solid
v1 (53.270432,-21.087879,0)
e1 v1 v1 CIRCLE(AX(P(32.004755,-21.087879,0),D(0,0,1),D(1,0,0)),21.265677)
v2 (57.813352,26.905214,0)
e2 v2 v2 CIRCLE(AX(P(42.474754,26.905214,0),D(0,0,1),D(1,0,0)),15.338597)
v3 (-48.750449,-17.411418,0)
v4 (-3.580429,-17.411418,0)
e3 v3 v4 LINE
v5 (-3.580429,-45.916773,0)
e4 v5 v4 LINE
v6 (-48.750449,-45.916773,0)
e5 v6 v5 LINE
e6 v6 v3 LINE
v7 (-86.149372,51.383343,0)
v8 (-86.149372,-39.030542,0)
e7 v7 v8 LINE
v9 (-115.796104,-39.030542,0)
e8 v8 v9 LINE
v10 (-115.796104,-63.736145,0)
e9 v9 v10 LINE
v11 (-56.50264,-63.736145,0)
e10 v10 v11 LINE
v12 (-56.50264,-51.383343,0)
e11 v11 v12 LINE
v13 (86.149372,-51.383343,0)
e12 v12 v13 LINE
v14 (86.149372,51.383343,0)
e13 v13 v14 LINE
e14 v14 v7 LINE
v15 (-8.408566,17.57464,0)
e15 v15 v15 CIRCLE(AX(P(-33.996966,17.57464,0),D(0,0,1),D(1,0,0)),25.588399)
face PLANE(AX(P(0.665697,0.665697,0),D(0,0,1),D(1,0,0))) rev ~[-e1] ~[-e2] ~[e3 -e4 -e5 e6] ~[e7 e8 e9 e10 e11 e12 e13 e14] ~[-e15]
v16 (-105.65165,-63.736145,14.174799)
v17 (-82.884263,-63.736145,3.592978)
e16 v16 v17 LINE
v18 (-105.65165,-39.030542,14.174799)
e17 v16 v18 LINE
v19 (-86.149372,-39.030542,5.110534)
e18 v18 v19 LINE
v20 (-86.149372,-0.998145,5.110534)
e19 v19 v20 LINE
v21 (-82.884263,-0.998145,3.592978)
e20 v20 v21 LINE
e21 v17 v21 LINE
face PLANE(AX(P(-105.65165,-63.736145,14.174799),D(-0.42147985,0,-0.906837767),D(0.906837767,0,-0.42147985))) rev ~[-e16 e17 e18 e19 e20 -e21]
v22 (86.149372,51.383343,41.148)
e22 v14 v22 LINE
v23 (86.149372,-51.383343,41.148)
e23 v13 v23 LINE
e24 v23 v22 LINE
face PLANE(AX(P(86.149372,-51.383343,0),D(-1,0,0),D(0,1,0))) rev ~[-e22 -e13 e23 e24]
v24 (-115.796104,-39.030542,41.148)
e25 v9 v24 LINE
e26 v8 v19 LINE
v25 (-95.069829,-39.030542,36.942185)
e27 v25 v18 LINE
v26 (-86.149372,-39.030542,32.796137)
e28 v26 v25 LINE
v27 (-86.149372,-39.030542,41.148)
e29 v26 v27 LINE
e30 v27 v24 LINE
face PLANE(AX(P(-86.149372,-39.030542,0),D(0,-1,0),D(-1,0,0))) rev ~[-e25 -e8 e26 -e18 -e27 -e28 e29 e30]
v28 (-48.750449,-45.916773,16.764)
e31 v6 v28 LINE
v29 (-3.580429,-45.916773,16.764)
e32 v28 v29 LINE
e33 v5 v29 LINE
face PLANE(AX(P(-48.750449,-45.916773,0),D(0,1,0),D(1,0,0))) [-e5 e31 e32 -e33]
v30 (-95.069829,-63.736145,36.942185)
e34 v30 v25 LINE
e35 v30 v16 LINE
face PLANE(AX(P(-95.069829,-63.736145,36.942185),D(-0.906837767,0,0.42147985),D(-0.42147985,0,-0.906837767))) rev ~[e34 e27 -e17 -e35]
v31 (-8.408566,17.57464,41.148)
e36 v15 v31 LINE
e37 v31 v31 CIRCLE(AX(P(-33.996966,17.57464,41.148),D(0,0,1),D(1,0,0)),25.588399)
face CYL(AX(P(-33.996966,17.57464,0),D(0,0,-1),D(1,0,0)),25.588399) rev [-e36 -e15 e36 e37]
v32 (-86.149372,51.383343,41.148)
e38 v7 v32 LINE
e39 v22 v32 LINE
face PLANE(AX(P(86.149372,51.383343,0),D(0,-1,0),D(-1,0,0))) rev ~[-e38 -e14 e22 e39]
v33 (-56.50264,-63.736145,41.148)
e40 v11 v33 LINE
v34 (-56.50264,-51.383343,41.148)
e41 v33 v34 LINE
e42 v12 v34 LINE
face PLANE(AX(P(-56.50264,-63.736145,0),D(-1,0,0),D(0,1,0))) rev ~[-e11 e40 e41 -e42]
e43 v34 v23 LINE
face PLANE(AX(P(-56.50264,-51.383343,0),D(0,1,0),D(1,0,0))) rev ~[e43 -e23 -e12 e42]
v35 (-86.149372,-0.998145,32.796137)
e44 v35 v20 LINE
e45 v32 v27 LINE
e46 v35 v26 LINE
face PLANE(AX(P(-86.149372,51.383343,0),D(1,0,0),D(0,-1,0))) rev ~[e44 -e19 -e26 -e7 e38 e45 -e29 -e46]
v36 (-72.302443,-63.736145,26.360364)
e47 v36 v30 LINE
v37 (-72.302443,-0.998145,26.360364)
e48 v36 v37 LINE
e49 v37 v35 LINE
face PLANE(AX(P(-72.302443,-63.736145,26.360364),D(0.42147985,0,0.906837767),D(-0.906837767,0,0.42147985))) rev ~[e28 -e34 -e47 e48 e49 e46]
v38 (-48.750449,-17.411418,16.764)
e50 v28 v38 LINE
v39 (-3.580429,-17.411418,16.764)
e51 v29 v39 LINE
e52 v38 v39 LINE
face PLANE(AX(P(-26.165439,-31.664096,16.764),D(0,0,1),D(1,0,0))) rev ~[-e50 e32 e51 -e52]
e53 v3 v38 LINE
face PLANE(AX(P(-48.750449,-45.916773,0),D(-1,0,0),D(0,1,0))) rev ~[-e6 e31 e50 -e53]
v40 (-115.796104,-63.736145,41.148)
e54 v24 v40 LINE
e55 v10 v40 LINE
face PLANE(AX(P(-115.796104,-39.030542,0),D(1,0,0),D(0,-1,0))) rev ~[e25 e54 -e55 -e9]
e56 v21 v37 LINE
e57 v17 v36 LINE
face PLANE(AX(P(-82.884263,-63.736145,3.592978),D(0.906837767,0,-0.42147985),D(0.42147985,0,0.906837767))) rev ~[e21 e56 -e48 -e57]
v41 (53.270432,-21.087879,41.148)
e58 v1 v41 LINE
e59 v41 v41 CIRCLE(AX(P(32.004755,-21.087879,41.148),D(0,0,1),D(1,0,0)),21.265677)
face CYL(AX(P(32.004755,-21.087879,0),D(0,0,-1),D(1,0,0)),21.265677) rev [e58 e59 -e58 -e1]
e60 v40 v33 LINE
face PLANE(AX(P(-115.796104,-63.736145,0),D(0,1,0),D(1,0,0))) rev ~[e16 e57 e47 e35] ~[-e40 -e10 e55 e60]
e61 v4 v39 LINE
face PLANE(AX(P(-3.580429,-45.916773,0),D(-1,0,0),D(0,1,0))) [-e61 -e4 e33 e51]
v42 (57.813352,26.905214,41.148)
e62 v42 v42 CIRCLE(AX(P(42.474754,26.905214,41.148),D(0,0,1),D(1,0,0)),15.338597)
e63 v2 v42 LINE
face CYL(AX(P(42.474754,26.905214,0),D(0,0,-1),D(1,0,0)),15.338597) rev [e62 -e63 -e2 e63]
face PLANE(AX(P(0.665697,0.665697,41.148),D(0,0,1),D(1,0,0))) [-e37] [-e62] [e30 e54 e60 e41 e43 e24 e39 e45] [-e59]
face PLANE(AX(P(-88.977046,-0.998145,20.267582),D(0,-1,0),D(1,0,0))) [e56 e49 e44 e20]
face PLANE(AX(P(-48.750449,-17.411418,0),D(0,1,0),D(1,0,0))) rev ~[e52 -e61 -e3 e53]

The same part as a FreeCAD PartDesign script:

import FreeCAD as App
import Part
import Sketcher

V = App.Vector
Q = App.Units.Quantity


def add_polygon(sketch, points):
    """Adds a closed chain of lines whose ends are joined by coincident constraints."""
    first, n = sketch.GeometryCount, len(points)
    for a, b in zip(points, points[1:] + points[:1]):
        sketch.addGeometry(Part.LineSegment(App.Vector(*a, 0), App.Vector(*b, 0)), False)
    for i in range(n):
        sketch.addConstraint(Sketcher.Constraint("Coincident", first + i, 2, first + (i + 1) % n, 1))

doc = App.newDocument("Part")
body = doc.addObject("PartDesign::Body", "Body")

# Sketch on XY plane
sketch1 = body.newObject("Sketcher::SketchObject", "Sketch")
sketch1.AttachmentSupport = (doc.getObject("XY_Plane"), [""])
sketch1.MapMode = "FlatFace"
add_polygon(sketch1, [(86, -51), (86, 51), (-86, 51), (-86, -39), (-116, -39), (-116, -64), (-57, -64), (-57, -51)])  # lines 0-7
sketch1.addGeometry(Part.Circle(V(32, -21, 0), V(0, 0, 1), 21), False)  # 8
sketch1.addGeometry(Part.Circle(V(-34, 18, 0), V(0, 0, 1), 26), False)  # 9
sketch1.addGeometry(Part.Circle(V(42, 27, 0), V(0, 0, 1), 15), False)  # 10
sketch1.addConstraint([
    Sketcher.Constraint("Vertical", 0),
    Sketcher.Constraint("Horizontal", 1),
    Sketcher.Constraint("Vertical", 2),
    Sketcher.Constraint("Horizontal", 3),
    Sketcher.Constraint("Vertical", 4),
    Sketcher.Constraint("Horizontal", 5),
    Sketcher.Constraint("Vertical", 6),
    Sketcher.Constraint("Horizontal", 7),
    Sketcher.Constraint("Symmetric", 1, 2, 7, 2, -1, 1),
    Sketcher.Constraint("Diameter", 9, Q("51.176799 mm")),
    Sketcher.Constraint("Diameter", 8, Q("42.531354 mm")),
    Sketcher.Constraint("Diameter", 10, Q("30.677195 mm")),
    Sketcher.Constraint("DistanceY", 6, 1, 6, 2, Q("12.352802 mm")),
    Sketcher.Constraint("DistanceX", 3, 2, 3, 1, Q("29.646732 mm")),
    Sketcher.Constraint("DistanceX", 8, 3, 10, 3, Q("10.469999 mm")),
    Sketcher.Constraint("DistanceY", 6, 2, 2, 2, Q("12.352802 mm")),
    Sketcher.Constraint("DistanceX", 1, 2, 1, 1, Q("172.298744 mm")),
    Sketcher.Constraint("DistanceX", 5, 1, 5, 2, Q("59.293464 mm")),
    Sketcher.Constraint("DistanceY", 0, 1, 0, 2, Q("102.766687 mm")),
    Sketcher.Constraint("DistanceY", 8, 3, -1, 1, Q("21.087879 mm")),
    Sketcher.Constraint("DistanceY", -1, 1, 9, 3, Q("17.57464 mm")),
    Sketcher.Constraint("DistanceX", 9, 3, 8, 3, Q("66.001721 mm")),
    Sketcher.Constraint("DistanceX", 10, 3, 0, 2, Q("43.674618 mm")),
    Sketcher.Constraint("DistanceY", 10, 3, 0, 2, Q("24.478129 mm")),
])
pad1 = body.newObject("PartDesign::Pad", "Pad")
pad1.Profile = sketch1
pad1.Length = Q("1.62 in")

# Sketch on XZ plane
sketch2 = body.newObject("Sketcher::SketchObject", "Sketch001")
sketch2.AttachmentSupport = (doc.getObject("XZ_Plane"), [""])
sketch2.MapMode = "FlatFace"
sketch2.AttachmentOffset = App.Placement(V(0, 0, 63.736145), App.Rotation())
add_polygon(sketch2, [(-83, 4), (-72, 26), (-95, 37), (-106, 14)])  # lines 0-3
sketch2.addConstraint([
    Sketcher.Constraint("Perpendicular", 0, 1),
    Sketcher.Constraint("Perpendicular", 1, 2),
    Sketcher.Constraint("Perpendicular", 2, 3),
    Sketcher.Constraint("Equal", 0, 1),
    Sketcher.Constraint("DistanceY", -1, 1, 2, 2, Q("14.174799 mm")),
    Sketcher.Constraint("Distance", 0, Q("25.10635 mm")),
    Sketcher.Constraint("DistanceX", 1, 2, -1, 1, Q("95.069829 mm")),
    Sketcher.Constraint("DistanceX", 2, 2, -1, 1, Q("105.65165 mm")),
])
pocket1 = body.newObject("PartDesign::Pocket", "Pocket")
pocket1.Profile = sketch2
pocket1.Length = Q("2.47 in")

# Sketch on XY plane
sketch3 = body.newObject("Sketcher::SketchObject", "Sketch002")
sketch3.AttachmentSupport = (doc.getObject("XY_Plane"), [""])
sketch3.MapMode = "FlatFace"
add_polygon(sketch3, [(-49, -17), (-49, -46), (-4, -46), (-4, -17)])  # lines 0-3
sketch3.addConstraint([
    Sketcher.Constraint("Vertical", 0),
    Sketcher.Constraint("Horizontal", 1),
    Sketcher.Constraint("Vertical", 2),
    Sketcher.Constraint("Horizontal", 3),
    Sketcher.Constraint("DistanceX", 1, 1, 1, 2, Q("45.17002 mm")),
    Sketcher.Constraint("DistanceY", 0, 2, 0, 1, Q("28.505355 mm")),
    Sketcher.Constraint("DistanceX", 0, 2, -1, 1, Q("48.750449 mm")),
    Sketcher.Constraint("DistanceY", 2, 2, -1, 1, Q("17.411418 mm")),
])
pocket2 = body.newObject("PartDesign::Pocket", "Pocket001")
pocket2.Profile = sketch3
pocket2.Length = Q("0.66 in")
pocket2.Reversed = True

doc.recompute()
